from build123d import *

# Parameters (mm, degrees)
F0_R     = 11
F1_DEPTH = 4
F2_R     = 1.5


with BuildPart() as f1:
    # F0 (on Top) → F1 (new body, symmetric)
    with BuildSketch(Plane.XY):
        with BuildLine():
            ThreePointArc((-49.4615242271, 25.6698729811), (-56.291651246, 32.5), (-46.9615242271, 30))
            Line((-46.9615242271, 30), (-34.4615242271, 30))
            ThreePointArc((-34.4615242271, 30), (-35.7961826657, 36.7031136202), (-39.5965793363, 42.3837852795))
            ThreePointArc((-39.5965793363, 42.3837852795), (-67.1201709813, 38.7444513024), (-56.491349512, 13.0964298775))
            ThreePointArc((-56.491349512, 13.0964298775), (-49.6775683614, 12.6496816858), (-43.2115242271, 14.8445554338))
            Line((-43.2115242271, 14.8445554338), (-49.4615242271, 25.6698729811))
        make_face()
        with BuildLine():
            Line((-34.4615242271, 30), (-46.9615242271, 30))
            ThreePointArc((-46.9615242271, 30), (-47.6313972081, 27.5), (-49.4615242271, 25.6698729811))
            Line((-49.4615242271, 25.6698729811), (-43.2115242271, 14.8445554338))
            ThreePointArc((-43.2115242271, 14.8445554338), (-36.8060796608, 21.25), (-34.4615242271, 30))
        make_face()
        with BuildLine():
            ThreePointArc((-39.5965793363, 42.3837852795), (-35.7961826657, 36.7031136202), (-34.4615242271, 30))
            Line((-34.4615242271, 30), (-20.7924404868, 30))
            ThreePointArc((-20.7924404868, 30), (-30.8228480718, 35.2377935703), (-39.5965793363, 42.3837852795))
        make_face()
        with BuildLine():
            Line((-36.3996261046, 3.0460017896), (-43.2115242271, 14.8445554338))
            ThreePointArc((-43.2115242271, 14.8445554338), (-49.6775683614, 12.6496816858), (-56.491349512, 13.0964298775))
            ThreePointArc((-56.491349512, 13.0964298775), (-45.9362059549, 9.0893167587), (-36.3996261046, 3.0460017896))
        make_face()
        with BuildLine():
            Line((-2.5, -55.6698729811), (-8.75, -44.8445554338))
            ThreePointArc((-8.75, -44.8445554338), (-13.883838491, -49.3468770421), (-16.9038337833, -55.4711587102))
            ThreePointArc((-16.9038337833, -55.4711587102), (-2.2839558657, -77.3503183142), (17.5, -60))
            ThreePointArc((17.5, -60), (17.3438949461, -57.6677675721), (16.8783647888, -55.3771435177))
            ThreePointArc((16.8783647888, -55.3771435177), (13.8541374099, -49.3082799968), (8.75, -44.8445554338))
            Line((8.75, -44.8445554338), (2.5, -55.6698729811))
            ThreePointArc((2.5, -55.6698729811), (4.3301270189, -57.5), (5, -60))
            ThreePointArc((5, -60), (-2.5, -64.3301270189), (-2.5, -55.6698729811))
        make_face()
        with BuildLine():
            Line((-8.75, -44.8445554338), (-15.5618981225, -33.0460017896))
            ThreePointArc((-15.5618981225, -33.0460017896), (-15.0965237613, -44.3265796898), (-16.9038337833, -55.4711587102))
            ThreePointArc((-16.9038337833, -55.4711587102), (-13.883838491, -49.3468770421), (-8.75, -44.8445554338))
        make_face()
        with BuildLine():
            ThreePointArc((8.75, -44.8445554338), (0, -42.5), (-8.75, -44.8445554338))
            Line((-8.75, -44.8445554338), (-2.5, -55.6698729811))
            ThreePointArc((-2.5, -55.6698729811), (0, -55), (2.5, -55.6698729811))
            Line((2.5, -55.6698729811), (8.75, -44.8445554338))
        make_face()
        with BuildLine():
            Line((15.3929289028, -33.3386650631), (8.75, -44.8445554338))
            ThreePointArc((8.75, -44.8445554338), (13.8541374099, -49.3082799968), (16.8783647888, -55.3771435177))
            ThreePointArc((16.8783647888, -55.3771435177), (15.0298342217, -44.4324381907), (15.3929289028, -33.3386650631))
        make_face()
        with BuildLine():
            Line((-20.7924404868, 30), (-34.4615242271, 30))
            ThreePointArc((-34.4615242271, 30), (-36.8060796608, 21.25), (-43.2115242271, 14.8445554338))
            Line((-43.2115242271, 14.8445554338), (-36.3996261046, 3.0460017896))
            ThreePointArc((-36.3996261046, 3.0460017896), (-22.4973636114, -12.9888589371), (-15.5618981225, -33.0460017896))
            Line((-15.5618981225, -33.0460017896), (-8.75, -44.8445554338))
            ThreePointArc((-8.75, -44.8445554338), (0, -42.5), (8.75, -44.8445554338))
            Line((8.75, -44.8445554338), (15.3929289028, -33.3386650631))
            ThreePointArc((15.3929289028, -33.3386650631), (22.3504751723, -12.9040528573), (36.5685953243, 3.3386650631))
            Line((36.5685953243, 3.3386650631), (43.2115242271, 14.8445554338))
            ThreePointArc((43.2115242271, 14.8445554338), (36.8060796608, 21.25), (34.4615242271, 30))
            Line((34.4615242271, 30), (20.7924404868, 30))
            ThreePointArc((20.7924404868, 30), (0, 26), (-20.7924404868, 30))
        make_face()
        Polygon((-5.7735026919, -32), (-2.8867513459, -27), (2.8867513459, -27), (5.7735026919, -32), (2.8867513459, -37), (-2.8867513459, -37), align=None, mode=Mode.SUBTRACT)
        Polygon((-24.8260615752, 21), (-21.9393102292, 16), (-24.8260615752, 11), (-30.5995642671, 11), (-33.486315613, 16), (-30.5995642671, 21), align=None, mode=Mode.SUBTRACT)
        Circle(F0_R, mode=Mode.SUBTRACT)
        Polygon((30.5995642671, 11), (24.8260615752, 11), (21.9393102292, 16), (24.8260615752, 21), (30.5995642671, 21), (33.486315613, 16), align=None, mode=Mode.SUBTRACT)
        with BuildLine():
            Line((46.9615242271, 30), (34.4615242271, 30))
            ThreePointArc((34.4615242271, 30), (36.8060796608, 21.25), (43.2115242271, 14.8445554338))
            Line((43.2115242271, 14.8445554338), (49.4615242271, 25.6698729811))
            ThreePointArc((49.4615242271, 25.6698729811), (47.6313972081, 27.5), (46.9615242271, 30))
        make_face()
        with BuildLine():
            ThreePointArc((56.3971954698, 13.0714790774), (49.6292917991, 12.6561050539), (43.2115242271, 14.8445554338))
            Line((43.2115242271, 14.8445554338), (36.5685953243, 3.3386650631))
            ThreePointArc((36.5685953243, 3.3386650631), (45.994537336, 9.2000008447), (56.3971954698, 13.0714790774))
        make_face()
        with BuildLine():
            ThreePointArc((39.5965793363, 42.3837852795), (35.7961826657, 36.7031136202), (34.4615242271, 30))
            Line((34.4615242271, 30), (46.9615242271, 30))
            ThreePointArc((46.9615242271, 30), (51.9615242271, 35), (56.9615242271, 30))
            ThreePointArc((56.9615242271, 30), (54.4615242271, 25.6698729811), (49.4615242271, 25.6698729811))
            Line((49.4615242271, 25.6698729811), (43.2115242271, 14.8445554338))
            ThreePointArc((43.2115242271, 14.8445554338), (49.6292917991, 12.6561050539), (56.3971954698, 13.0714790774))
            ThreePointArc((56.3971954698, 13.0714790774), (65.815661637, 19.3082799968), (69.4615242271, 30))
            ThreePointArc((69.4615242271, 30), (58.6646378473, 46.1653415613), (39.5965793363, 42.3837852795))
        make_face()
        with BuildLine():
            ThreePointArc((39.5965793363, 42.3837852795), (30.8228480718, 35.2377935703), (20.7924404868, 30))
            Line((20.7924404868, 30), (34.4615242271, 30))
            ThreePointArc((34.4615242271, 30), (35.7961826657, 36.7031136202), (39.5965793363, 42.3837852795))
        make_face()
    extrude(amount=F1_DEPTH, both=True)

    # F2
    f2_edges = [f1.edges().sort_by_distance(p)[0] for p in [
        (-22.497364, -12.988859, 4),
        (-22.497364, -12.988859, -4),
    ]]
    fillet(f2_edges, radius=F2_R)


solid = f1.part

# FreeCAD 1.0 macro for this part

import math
import FreeCAD as App
import Part
import Sketcher

V = App.Vector
Q = App.Units.Quantity


def edges_at(feature, points):
    """Names of the edges that pass closest to the given points."""
    edges = feature.Shape.Edges
    near = lambda p: min(range(len(edges)), key=lambda i: edges[i].distToShape(Part.Vertex(*p))[0])
    return sorted({f"Edge{near(p) + 1}" for p in points})

doc = App.newDocument("Part")
body = doc.addObject("PartDesign::Body", "Body")

# Sketch on XY plane
sketch1 = body.newObject("Sketcher::SketchObject", "Sketch")
sketch1.AttachmentSupport = (doc.getObject("XY_Plane"), [""])
sketch1.MapMode = "FlatFace"
sketch1.addGeometry([
    Part.ArcOfCircle(Part.Circle(V(-51.961524, 30, 0), V(0, 0, 1), 17.5), math.radians(45.043617), math.radians(254.998332)),  # 0
    Part.ArcOfCircle(Part.Circle(V(-70.983382, -40.982275, 0), V(0, 0, 1), 55.986831), math.radians(51.850732), math.radians(74.998332)),  # 1
    Part.ArcOfCircle(Part.Circle(V(-70.983382, -40.982275, 0), V(0, 0, 1), 55.986831), math.radians(8.149268), math.radians(51.850732)),  # 2
    Part.ArcOfCircle(Part.Circle(V(-70.983382, -40.982275, 0), V(0, 0, 1), 55.986831), math.radians(-14.998332), math.radians(8.149268)),  # 3
    Part.ArcOfCircle(Part.Circle(V(0, -60, 0), V(0, 0, 1), 17.5), math.radians(165.001668), math.radians(360)),  # 4
    Part.ArcOfCircle(Part.Circle(V(0, -60, 0), V(0, 0, 1), 17.5), math.radians(0), math.radians(15.317238)),  # 5
    Part.ArcOfCircle(Part.Circle(V(70.485185, -40.694641, 0), V(0, 0, 1), 55.581176), math.radians(172.39479), math.radians(195.317238)),  # 6
    Part.ArcOfCircle(Part.Circle(V(70.485185, -40.694641, 0), V(0, 0, 1), 55.581176), math.radians(127.60521), math.radians(172.39479)),  # 7
    Part.ArcOfCircle(Part.Circle(V(70.485185, -40.694641, 0), V(0, 0, 1), 55.581176), math.radians(104.682762), math.radians(127.60521)),  # 8
    Part.ArcOfCircle(Part.Circle(V(51.961524, 30, 0), V(0, 0, 1), 17.5), math.radians(-75.317238), math.radians(0)),  # 9
    Part.ArcOfCircle(Part.Circle(V(51.961524, 30, 0), V(0, 0, 1), 17.5), math.radians(0), math.radians(134.956383)),  # 10
    Part.ArcOfCircle(Part.Circle(V(0, 82.040698, 0), V(0, 0, 1), 56.040698), math.radians(-68.22122), math.radians(-45.043617)),  # 11
    Part.ArcOfCircle(Part.Circle(V(0, 82.040698, 0), V(0, 0, 1), 56.040698), math.radians(-111.77878), math.radians(-68.22122)),  # 12
    Part.ArcOfCircle(Part.Circle(V(0, 82.040698, 0), V(0, 0, 1), 56.040698), math.radians(-134.956383), math.radians(-111.77878)),  # 13
    Part.ArcOfCircle(Part.Circle(V(51.961524, 30, 0), V(0, 0, 1), 5), math.radians(180), math.radians(240)),  # 14
    Part.ArcOfCircle(Part.Circle(V(51.961524, 30, 0), V(0, 0, 1), 5), math.radians(0), math.radians(180)),  # 15
    Part.ArcOfCircle(Part.Circle(V(51.961524, 30, 0), V(0, 0, 1), 5), math.radians(-120), math.radians(0)),  # 16
    Part.ArcOfCircle(Part.Circle(V(0, -60, 0), V(0, 0, 1), 5), math.radians(60), math.radians(120)),  # 17
    Part.ArcOfCircle(Part.Circle(V(0, -60, 0), V(0, 0, 1), 5), math.radians(0), math.radians(60)),  # 18
    Part.ArcOfCircle(Part.Circle(V(0, -60, 0), V(0, 0, 1), 5), math.radians(120), math.radians(360)),  # 19
    Part.LineSegment(V(-2.886751, -37, 0), V(-5.773503, -32, 0)),  # 20
    Part.LineSegment(V(-5.773503, -32, 0), V(-2.886751, -27, 0)),  # 21
    Part.LineSegment(V(-2.886751, -27, 0), V(2.886751, -27, 0)),  # 22
    Part.LineSegment(V(2.886751, -27, 0), V(5.773503, -32, 0)),  # 23
    Part.LineSegment(V(5.773503, -32, 0), V(2.886751, -37, 0)),  # 24
    Part.LineSegment(V(2.886751, -37, 0), V(-2.886751, -37, 0)),  # 25
    Part.ArcOfCircle(Part.Circle(V(-51.961524, 30, 0), V(0, 0, 1), 5), math.radians(0), math.radians(300)),  # 26
    Part.ArcOfCircle(Part.Circle(V(-51.961524, 30, 0), V(0, 0, 1), 5), math.radians(-60), math.radians(0)),  # 27
    Part.LineSegment(V(-30.599564, 21, 0), V(-24.826062, 21, 0)),  # 28
    Part.LineSegment(V(-24.826062, 21, 0), V(-21.93931, 16, 0)),  # 29
    Part.LineSegment(V(-21.93931, 16, 0), V(-24.826062, 11, 0)),  # 30
    Part.LineSegment(V(-24.826062, 11, 0), V(-30.599564, 11, 0)),  # 31
    Part.LineSegment(V(-30.599564, 11, 0), V(-33.486316, 16, 0)),  # 32
    Part.LineSegment(V(-33.486316, 16, 0), V(-30.599564, 21, 0)),  # 33
    Part.Circle(V(0, 0, 0), V(0, 0, 1), 11),  # 34
    Part.LineSegment(V(33.486316, 16, 0), V(30.599564, 11, 0)),  # 35
    Part.LineSegment(V(30.599564, 11, 0), V(24.826062, 11, 0)),  # 36
    Part.LineSegment(V(24.826062, 11, 0), V(21.93931, 16, 0)),  # 37
    Part.LineSegment(V(21.93931, 16, 0), V(24.826062, 21, 0)),  # 38
    Part.LineSegment(V(24.826062, 21, 0), V(30.599564, 21, 0)),  # 39
    Part.LineSegment(V(30.599564, 21, 0), V(33.486316, 16, 0)),  # 40
], False)
sketch1.addConstraint([
    Sketcher.Constraint("Tangent", 0, 2, 1, 2),
    Sketcher.Constraint("Tangent", 1, 1, 2, 2),
    Sketcher.Constraint("Tangent", 2, 1, 3, 2),
    Sketcher.Constraint("Tangent", 3, 1, 4, 1),
    Sketcher.Constraint("Tangent", 4, 2, 5, 1),
    Sketcher.Constraint("Tangent", 5, 2, 6, 2),
    Sketcher.Constraint("Tangent", 6, 1, 7, 2),
    Sketcher.Constraint("Tangent", 7, 1, 8, 2),
    Sketcher.Constraint("Tangent", 8, 1, 9, 1),
    Sketcher.Constraint("Tangent", 9, 2, 10, 1),
    Sketcher.Constraint("Tangent", 10, 2, 11, 2),
    Sketcher.Constraint("Tangent", 11, 1, 12, 2),
    Sketcher.Constraint("Tangent", 12, 1, 13, 2),
    Sketcher.Constraint("Tangent", 13, 1, 0, 1),
    Sketcher.Constraint("Tangent", 14, 1, 15, 2),
    Sketcher.Constraint("Tangent", 15, 1, 16, 2),
    Sketcher.Constraint("Tangent", 16, 1, 14, 2),
    Sketcher.Constraint("Tangent", 17, 1, 18, 2),
    Sketcher.Constraint("Tangent", 18, 1, 19, 2),
    Sketcher.Constraint("Tangent", 19, 1, 17, 2),
    Sketcher.Constraint("Coincident", 20, 2, 21, 1),
    Sketcher.Constraint("Coincident", 21, 2, 22, 1),
    Sketcher.Constraint("Coincident", 22, 2, 23, 1),
    Sketcher.Constraint("Coincident", 23, 2, 24, 1),
    Sketcher.Constraint("Coincident", 24, 2, 25, 1),
    Sketcher.Constraint("Coincident", 25, 2, 20, 1),
    Sketcher.Constraint("Tangent", 26, 1, 27, 2),
    Sketcher.Constraint("Coincident", 27, 1, 26, 2),
    Sketcher.Constraint("Coincident", 28, 2, 29, 1),
    Sketcher.Constraint("Coincident", 29, 2, 30, 1),
    Sketcher.Constraint("Coincident", 30, 2, 31, 1),
    Sketcher.Constraint("Coincident", 31, 2, 32, 1),
    Sketcher.Constraint("Coincident", 32, 2, 33, 1),
    Sketcher.Constraint("Coincident", 33, 2, 28, 1),
    Sketcher.Constraint("Coincident", 35, 2, 36, 1),
    Sketcher.Constraint("Coincident", 36, 2, 37, 1),
    Sketcher.Constraint("Coincident", 37, 2, 38, 1),
    Sketcher.Constraint("Coincident", 38, 2, 39, 1),
    Sketcher.Constraint("Coincident", 39, 2, 40, 1),
    Sketcher.Constraint("Coincident", 40, 2, 35, 1),
    Sketcher.Constraint("Horizontal", 22),
    Sketcher.Constraint("Horizontal", 25),
    Sketcher.Constraint("Horizontal", 28),
    Sketcher.Constraint("Horizontal", 31),
    Sketcher.Constraint("Horizontal", 36),
    Sketcher.Constraint("Horizontal", 39),
    Sketcher.Constraint("Coincident", 34, 3, -1, 1),
    Sketcher.Constraint("Coincident", 3, 3, 1, 3),
    Sketcher.Constraint("Coincident", 8, 3, 6, 3),
    Sketcher.Constraint("Coincident", 13, 3, 11, 3),
    Sketcher.Constraint("Coincident", 14, 3, 9, 3),
    Sketcher.Constraint("Coincident", 17, 3, 4, 3),
    Sketcher.Constraint("Coincident", 26, 3, 0, 3),
    Sketcher.Constraint("Equal", 0, 4),
    Sketcher.Constraint("Equal", 4, 5),
    Sketcher.Constraint("Equal", 5, 9),
    Sketcher.Constraint("Equal", 9, 10),
    Sketcher.Constraint("Equal", 16, 17),
    Sketcher.Constraint("Equal", 19, 26),
    Sketcher.Constraint("Symmetric", 0, 3, 9, 3, -2),
    Sketcher.Constraint("Symmetric", 17, 1, 19, 1, -2),
    Sketcher.Constraint("Symmetric", 20, 2, 23, 2, -2),
    Sketcher.Constraint("Symmetric", 31, 2, 35, 2, -2),
    Sketcher.Constraint("Symmetric", 29, 2, 37, 2, -2),
    Sketcher.Constraint("Symmetric", 28, 2, 38, 2, -2),
    Sketcher.Constraint("Symmetric", 32, 2, 40, 2, -2),
    Sketcher.Constraint("Parallel", 20, 23),
    Sketcher.Constraint("Parallel", 21, 24),
    Sketcher.Constraint("Parallel", 23, 29),
    Sketcher.Constraint("Parallel", 24, 30),
    Sketcher.Constraint("Parallel", 29, 32),
    Sketcher.Constraint("Parallel", 30, 33),
    Sketcher.Constraint("Parallel", 33, 35),
    Sketcher.Constraint("Parallel", 32, 37),
    Sketcher.Constraint("Parallel", 37, 40),
    Sketcher.Constraint("Horizontal", 19, 3, 4, 2),
    Sketcher.Constraint("Horizontal", 27, 3, 9, 2),
    Sketcher.Constraint("Horizontal", 9, 2, 11, 1),
    Sketcher.Constraint("Horizontal", 11, 1, 12, 1),
    Sketcher.Constraint("Horizontal", 12, 1, 14, 1),
    Sketcher.Constraint("Horizontal", 14, 1, 15, 1),
    Sketcher.Constraint("Horizontal", 4, 2, 18, 1),
    Sketcher.Constraint("Horizontal", 15, 1, 26, 1),
    Sketcher.Constraint("Horizontal", 16, 1, 27, 1),
    Sketcher.Constraint("Horizontal", 29, 2, 32, 2),
    Sketcher.Constraint("Vertical", 22, 2, 24, 2),
    Sketcher.Constraint("Vertical", 28, 2, 30, 2),
    Sketcher.Constraint("Equal", 25, 28),
    Sketcher.Constraint("Equal", 24, 29),
    Sketcher.Constraint("Diameter", 34, 22.0),
    Sketcher.Constraint("Radius", 14, 5.0),
    Sketcher.Constraint("Radius", 0, 17.5),
    Sketcher.Constraint("Angle", 20, Q("120 deg")),
    Sketcher.Constraint("DistanceY", -1, 1, 0, 3, 30.0),
    Sketcher.Constraint("DistanceY", 4, 3, -1, 1, 60.0),
    Sketcher.Constraint("DistanceY", 20, 2, -1, 1, 32.0),
    Sketcher.Constraint("DistanceY", 21, 2, -1, 1, 27.0),
    Sketcher.Constraint("DistanceY", -1, 1, 28, 2, 21.0),
    Sketcher.Constraint("DistanceX", -1, 1, 17, 1, 2.5),
    Sketcher.Constraint("Radius", 1, 55.986831),
    Sketcher.Constraint("DistanceY", -1, 1, 1, 1, 3.046002),
    Sketcher.Constraint("DistanceY", 2, 1, -1, 1, 33.046002),
    Sketcher.Constraint("Radius", 6, 55.581176),
    Sketcher.Constraint("Radius", 11, 56.040698),
    Sketcher.Constraint("DistanceX", 2, 1, -1, 1, 15.561898),
    Sketcher.Constraint("DistanceX", 22, 1, 22, 2, 5.773503),
    Sketcher.Constraint("DistanceX", -1, 1, 6, 1, 15.392929),
    Sketcher.Constraint("DistanceX", 28, 2, -1, 1, 24.826062),
    Sketcher.Constraint("DistanceX", -1, 1, 7, 1, 36.568595),
    Sketcher.Constraint("DistanceX", -1, 1, 16, 1, 49.461524),
])
pad1 = body.newObject("PartDesign::Pad", "Pad")
pad1.Profile = sketch1
pad1.Length = 8
pad1.Midplane = True
doc.recompute()

fillet = body.newObject("PartDesign::Fillet", "Fillet")
fillet.Base = (pad1, edges_at(pad1, [(-22.497, -12.989, 4), (-22.497, -12.989, -4)]))
fillet.Radius = 1.5

doc.recompute()
